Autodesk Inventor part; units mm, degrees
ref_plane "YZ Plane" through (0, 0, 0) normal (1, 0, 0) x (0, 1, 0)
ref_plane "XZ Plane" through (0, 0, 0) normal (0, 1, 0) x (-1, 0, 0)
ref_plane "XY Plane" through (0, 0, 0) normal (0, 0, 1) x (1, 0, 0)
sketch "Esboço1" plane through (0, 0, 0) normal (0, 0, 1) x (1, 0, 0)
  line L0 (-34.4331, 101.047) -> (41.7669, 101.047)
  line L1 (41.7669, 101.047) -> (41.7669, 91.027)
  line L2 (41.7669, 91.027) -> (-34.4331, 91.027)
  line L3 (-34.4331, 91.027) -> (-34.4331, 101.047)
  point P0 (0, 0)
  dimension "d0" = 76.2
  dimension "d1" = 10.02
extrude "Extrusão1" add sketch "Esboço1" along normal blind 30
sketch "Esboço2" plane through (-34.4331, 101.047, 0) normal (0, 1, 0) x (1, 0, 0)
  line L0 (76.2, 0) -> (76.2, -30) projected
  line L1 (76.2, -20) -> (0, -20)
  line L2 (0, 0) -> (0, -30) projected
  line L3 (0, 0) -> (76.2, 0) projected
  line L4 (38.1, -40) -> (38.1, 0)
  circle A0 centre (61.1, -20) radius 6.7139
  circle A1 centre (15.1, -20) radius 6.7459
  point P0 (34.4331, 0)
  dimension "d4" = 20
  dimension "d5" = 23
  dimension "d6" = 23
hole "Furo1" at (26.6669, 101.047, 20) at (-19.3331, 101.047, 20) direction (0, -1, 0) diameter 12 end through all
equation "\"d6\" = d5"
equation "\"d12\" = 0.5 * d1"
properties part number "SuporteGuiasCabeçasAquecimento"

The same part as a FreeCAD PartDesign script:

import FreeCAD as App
import Part
import Sketcher


def add_polygon(sketch, points):
    """Adds a closed chain of lines whose ends are joined by coincident constraints."""
    first, n = sketch.GeometryCount, len(points)
    for a, b in zip(points, points[1:] + points[:1]):
        sketch.addGeometry(Part.LineSegment(App.Vector(*a, 0), App.Vector(*b, 0)), False)
    for i in range(n):
        sketch.addConstraint(Sketcher.Constraint("Coincident", first + i, 2, first + (i + 1) % n, 1))

doc = App.newDocument("Part")
body = doc.addObject("PartDesign::Body", "Body")

# Sketch on XY plane
sketch1 = doc.addObject("Sketcher::SketchObject", "Sketch")
body.addObject(sketch1)
sketch1.AttachmentSupport = (doc.XY_Plane, [""])
sketch1.MapMode = "FlatFace"
add_polygon(sketch1, [(42, 101), (-34, 101), (-34, 91), (42, 91)])  # lines 0-3
sketch1.addConstraint([
    Sketcher.Constraint("Horizontal", 0),
    Sketcher.Constraint("Vertical", 1),
    Sketcher.Constraint("Horizontal", 2),
    Sketcher.Constraint("Vertical", 3),
    Sketcher.Constraint("DistanceX", 0, 2, 0, 1, 76.2),
    Sketcher.Constraint("DistanceY", 1, 2, 1, 1, 10.02),
    Sketcher.Constraint("DistanceX", 0, 2, -1, 1, 34.433),
    Sketcher.Constraint("DistanceY", -1, 1, 0, 2, 101.047),
])
pad1 = doc.addObject("PartDesign::Pad", "Pad")
body.addObject(pad1)
pad1.Profile = sketch1
pad1.Length = 30

# Sketch on XZ plane
sketch2 = doc.addObject("Sketcher::SketchObject", "Sketch001")
body.addObject(sketch2)
sketch2.AttachmentSupport = (doc.XZ_Plane, [""])
sketch2.MapMode = "FlatFace"
sketch2.AttachmentOffset = App.Placement(App.Vector(0, 0, -101.047), App.Rotation())
sketch2.addGeometry([
    Part.Circle(App.Vector(27, 20, 0), App.Vector(0, 0, 1), 6),
    Part.Circle(App.Vector(-19, 20, 0), App.Vector(0, 0, 1), 6),
], False)
sketch2.addConstraint([
    Sketcher.Constraint("Equal", 0, 1),
    Sketcher.Constraint("Horizontal", 0, 3, 1, 3),
    Sketcher.Constraint("Diameter", 0, 12.0),
    Sketcher.Constraint("DistanceY", -1, 1, 0, 3, 20.0),
    Sketcher.Constraint("DistanceX", 1, 3, 0, 3, 46.0),
    Sketcher.Constraint("DistanceX", -1, 1, 0, 3, 26.667),
])
doc.recompute()
hole = doc.addObject("PartDesign::Hole", "Hole")
body.addObject(hole)
hole.Profile = sketch2
hole.ThreadType = "None"
hole.Diameter = 12
hole.DepthType = "ThroughAll"
hole.Reversed = True

doc.recompute()
